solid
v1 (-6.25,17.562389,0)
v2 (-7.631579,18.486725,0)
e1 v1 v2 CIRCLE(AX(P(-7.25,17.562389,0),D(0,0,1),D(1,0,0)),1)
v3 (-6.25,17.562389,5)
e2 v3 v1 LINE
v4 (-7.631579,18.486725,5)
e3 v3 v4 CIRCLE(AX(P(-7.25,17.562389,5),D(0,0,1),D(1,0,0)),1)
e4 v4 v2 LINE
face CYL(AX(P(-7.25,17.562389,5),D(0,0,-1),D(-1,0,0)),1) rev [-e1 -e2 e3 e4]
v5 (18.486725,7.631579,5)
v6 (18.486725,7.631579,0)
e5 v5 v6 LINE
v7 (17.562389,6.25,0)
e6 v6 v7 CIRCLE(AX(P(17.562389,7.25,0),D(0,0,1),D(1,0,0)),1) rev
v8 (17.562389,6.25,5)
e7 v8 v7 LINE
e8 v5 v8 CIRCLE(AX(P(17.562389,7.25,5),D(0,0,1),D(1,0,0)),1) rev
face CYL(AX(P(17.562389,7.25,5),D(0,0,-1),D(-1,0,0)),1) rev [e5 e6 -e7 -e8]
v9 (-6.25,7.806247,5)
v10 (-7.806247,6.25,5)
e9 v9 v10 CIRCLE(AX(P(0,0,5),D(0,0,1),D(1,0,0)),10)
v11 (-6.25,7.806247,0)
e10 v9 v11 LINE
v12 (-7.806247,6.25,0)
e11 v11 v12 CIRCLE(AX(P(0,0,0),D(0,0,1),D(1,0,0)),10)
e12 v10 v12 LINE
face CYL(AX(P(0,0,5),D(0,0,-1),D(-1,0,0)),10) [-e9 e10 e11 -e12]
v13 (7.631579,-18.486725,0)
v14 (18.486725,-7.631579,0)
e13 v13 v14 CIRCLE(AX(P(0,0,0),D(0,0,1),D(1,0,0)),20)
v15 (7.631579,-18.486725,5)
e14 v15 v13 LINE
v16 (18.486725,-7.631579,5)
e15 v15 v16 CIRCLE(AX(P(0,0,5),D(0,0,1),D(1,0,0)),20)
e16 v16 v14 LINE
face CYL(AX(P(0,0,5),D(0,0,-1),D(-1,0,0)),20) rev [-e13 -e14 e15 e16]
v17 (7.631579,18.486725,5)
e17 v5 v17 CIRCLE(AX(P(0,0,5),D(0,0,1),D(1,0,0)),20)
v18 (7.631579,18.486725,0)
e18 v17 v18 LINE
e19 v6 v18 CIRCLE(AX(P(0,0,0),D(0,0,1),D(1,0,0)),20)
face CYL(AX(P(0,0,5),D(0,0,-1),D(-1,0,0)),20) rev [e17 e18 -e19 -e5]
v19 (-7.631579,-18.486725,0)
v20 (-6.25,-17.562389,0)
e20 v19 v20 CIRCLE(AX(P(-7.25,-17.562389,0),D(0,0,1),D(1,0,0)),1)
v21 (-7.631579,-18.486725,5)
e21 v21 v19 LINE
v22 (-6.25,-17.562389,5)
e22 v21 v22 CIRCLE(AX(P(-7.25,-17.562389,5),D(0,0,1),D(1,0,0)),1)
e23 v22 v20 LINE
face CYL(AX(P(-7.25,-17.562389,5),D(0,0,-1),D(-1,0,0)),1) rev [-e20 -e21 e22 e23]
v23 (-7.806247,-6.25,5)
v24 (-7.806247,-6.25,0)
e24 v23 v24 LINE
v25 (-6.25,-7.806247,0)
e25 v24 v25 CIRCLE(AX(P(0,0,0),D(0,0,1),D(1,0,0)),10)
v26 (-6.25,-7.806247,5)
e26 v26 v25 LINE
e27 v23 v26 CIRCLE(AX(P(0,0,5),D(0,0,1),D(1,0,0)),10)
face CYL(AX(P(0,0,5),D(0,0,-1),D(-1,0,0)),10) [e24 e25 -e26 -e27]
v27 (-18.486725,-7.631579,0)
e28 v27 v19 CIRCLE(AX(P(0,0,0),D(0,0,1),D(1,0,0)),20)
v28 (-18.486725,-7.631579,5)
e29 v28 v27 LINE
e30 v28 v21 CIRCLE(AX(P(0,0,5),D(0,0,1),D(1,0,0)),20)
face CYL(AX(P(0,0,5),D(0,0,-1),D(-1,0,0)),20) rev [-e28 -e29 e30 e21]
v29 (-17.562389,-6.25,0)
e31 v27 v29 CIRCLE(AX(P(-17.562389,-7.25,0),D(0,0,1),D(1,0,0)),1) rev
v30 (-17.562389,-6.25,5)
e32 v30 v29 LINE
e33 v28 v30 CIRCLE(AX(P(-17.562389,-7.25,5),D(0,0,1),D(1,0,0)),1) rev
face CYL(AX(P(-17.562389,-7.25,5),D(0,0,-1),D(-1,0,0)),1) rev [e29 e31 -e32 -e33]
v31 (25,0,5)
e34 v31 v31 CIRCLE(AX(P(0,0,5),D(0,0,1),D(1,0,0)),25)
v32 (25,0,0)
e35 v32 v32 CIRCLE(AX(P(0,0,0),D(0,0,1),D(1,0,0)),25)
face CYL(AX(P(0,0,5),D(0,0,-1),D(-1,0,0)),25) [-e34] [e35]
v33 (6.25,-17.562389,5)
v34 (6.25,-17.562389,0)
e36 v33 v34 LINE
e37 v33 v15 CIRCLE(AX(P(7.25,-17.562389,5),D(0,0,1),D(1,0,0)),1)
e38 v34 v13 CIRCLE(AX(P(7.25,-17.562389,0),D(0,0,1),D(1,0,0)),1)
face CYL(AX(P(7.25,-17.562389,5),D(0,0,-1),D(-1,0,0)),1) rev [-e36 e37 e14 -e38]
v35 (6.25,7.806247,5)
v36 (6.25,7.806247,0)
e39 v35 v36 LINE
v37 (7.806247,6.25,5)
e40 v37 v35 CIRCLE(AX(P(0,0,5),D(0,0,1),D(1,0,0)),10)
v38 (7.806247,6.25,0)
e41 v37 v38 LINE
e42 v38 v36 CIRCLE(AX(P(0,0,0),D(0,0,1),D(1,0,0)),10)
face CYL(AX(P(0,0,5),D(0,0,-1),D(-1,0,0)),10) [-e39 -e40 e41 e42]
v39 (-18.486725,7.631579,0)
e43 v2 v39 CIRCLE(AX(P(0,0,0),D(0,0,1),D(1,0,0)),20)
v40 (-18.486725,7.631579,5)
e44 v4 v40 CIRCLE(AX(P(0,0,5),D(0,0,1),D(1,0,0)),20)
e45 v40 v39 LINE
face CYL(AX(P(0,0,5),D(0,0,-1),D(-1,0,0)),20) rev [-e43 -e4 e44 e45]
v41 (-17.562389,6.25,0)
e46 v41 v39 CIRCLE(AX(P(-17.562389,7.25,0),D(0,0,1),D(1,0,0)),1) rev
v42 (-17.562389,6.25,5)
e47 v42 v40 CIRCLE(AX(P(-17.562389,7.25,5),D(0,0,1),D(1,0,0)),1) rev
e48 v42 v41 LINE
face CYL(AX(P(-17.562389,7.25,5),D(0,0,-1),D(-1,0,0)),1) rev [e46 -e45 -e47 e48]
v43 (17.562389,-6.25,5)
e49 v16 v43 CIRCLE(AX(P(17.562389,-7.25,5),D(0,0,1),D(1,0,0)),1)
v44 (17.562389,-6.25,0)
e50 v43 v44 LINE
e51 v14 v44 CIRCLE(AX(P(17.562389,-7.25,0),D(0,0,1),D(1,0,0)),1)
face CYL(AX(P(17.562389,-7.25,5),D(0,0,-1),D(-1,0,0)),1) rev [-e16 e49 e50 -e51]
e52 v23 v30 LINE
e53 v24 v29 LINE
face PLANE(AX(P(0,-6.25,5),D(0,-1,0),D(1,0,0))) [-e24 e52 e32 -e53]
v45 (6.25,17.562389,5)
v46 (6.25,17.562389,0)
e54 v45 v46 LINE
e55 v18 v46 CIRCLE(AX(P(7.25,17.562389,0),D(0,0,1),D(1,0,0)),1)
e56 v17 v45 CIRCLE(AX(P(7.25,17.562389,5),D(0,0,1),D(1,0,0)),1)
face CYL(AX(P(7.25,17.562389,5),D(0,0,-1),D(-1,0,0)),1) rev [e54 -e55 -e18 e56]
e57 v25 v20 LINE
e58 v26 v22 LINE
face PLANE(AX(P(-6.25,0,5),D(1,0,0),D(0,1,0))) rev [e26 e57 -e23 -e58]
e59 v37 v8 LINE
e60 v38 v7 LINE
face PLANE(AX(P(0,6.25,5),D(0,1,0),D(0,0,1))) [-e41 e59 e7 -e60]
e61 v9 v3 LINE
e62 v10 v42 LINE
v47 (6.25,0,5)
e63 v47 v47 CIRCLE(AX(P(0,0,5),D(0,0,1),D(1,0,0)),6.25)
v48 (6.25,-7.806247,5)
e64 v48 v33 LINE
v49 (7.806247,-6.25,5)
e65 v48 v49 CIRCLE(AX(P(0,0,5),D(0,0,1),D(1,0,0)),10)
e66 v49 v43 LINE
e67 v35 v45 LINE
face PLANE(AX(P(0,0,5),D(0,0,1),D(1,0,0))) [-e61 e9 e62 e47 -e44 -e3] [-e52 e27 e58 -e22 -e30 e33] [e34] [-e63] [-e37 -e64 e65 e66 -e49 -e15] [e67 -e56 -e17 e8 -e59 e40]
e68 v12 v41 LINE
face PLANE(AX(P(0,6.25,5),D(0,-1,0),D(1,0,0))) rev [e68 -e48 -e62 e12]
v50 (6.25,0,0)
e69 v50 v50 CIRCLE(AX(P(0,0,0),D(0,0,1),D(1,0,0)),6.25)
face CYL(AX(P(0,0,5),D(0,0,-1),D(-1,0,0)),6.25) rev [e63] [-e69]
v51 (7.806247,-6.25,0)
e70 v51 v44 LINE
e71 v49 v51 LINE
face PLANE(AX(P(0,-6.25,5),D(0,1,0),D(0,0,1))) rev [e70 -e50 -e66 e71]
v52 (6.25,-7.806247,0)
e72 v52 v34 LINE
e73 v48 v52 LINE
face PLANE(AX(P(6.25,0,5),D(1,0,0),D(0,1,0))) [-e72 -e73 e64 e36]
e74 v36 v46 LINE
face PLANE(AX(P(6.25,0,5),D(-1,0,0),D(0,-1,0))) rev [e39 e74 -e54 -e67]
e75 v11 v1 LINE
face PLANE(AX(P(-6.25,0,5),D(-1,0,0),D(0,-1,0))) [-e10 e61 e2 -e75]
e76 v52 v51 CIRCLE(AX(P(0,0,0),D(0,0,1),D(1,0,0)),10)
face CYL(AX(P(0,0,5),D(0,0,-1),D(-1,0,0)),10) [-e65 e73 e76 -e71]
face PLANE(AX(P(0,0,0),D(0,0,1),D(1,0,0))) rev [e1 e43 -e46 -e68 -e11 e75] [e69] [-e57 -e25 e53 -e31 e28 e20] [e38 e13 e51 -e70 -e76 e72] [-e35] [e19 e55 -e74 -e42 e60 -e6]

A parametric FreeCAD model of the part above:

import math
import FreeCAD as App
import Part
import Sketcher
from FreeCAD import Vector

doc = App.newDocument("Part")
body = doc.addObject("PartDesign::Body", "Body")

sketch1 = body.newObject("Sketcher::SketchObject", "Sketch")
sketch1.AttachmentSupport = (doc.getObject("XY_Plane"), [""])
sketch1.MapMode = "FlatFace"
sketch1.addGeometry(Part.Circle(Vector(0, 0, 0), Vector(0, 0, 1), 25), False)
sketch1.addGeometry(Part.ArcOfCircle(Part.Circle(Vector(17.6, 7.3, 0), Vector(0, 0, 1), 1), math.radians(-90), math.radians(22)), False)
sketch1.addGeometry(Part.LineSegment(Vector(17.6, 6.2, 0), Vector(7.8, 6.2, 0)), False)
sketch1.addGeometry(Part.ArcOfCircle(Part.Circle(Vector(0, 0, 0), Vector(0, 0, 1), 10), math.radians(38.68), math.radians(51.32)), False)
sketch1.addGeometry(Part.LineSegment(Vector(6.2, 7.8, 0), Vector(6.2, 17.6, 0)), False)
sketch1.addGeometry(Part.ArcOfCircle(Part.Circle(Vector(7.3, 17.6, 0), Vector(0, 0, 1), 1), math.radians(68), math.radians(180)), False)
sketch1.addGeometry(Part.ArcOfCircle(Part.Circle(Vector(0, 0, 0), Vector(0, 0, 1), 20), math.radians(22), math.radians(68)), False)
sketch1.addGeometry(Part.LineSegment(Vector(-6.2, 17.6, 0), Vector(-6.2, 7.8, 0)), False)
sketch1.addGeometry(Part.ArcOfCircle(Part.Circle(Vector(0, 0, 0), Vector(0, 0, 1), 10), math.radians(128.68), math.radians(141.32)), False)
sketch1.addGeometry(Part.LineSegment(Vector(-7.8, 6.2, 0), Vector(-17.6, 6.2, 0)), False)
sketch1.addGeometry(Part.ArcOfCircle(Part.Circle(Vector(-17.6, 7.3, 0), Vector(0, 0, 1), 1), math.radians(158), math.radians(270)), False)
sketch1.addGeometry(Part.ArcOfCircle(Part.Circle(Vector(0, 0, 0), Vector(0, 0, 1), 20), math.radians(112), math.radians(158)), False)
sketch1.addGeometry(Part.ArcOfCircle(Part.Circle(Vector(-7.3, 17.6, 0), Vector(0, 0, 1), 1), math.radians(0), math.radians(112)), False)
sketch1.addGeometry(Part.LineSegment(Vector(-17.6, -6.2, 0), Vector(-7.8, -6.2, 0)), False)
sketch1.addGeometry(Part.ArcOfCircle(Part.Circle(Vector(0, 0, 0), Vector(0, 0, 1), 10), math.radians(-141.32), math.radians(-128.68)), False)
sketch1.addGeometry(Part.LineSegment(Vector(-6.2, -7.8, 0), Vector(-6.2, -17.6, 0)), False)
sketch1.addGeometry(Part.ArcOfCircle(Part.Circle(Vector(-7.3, -17.6, 0), Vector(0, 0, 1), 1), math.radians(-112), math.radians(0)), False)
sketch1.addGeometry(Part.ArcOfCircle(Part.Circle(Vector(0, 0, 0), Vector(0, 0, 1), 20), math.radians(-158), math.radians(-112)), False)
sketch1.addGeometry(Part.ArcOfCircle(Part.Circle(Vector(-17.6, -7.3, 0), Vector(0, 0, 1), 1), math.radians(90), math.radians(202)), False)
sketch1.addGeometry(Part.LineSegment(Vector(6.2, -17.6, 0), Vector(6.2, -7.8, 0)), False)
sketch1.addGeometry(Part.ArcOfCircle(Part.Circle(Vector(0, 0, 0), Vector(0, 0, 1), 10), math.radians(-51.32), math.radians(-38.68)), False)
sketch1.addGeometry(Part.LineSegment(Vector(7.8, -6.2, 0), Vector(17.6, -6.2, 0)), False)
sketch1.addGeometry(Part.ArcOfCircle(Part.Circle(Vector(17.6, -7.3, 0), Vector(0, 0, 1), 1), math.radians(-22), math.radians(90)), False)
sketch1.addGeometry(Part.ArcOfCircle(Part.Circle(Vector(0, 0, 0), Vector(0, 0, 1), 20), math.radians(-68), math.radians(-22)), False)
sketch1.addGeometry(Part.ArcOfCircle(Part.Circle(Vector(7.3, -17.6, 0), Vector(0, 0, 1), 1), math.radians(-180), math.radians(-68)), False)
sketch1.addGeometry(Part.Circle(Vector(0, 0, 0), Vector(0, 0, 1), 6.2), False)
sketch1.addConstraint(Sketcher.Constraint("Tangent", 1, 1, 2, 1))
sketch1.addConstraint(Sketcher.Constraint("Coincident", 2, 2, 3, 1))
sketch1.addConstraint(Sketcher.Constraint("Coincident", 3, 2, 4, 1))
sketch1.addConstraint(Sketcher.Constraint("Tangent", 4, 2, 5, 2))
sketch1.addConstraint(Sketcher.Constraint("Tangent", 5, 1, 6, 2))
sketch1.addConstraint(Sketcher.Constraint("Tangent", 6, 1, 1, 2))
sketch1.addConstraint(Sketcher.Constraint("Coincident", 7, 2, 8, 1))
sketch1.addConstraint(Sketcher.Constraint("Coincident", 8, 2, 9, 1))
sketch1.addConstraint(Sketcher.Constraint("Tangent", 9, 2, 10, 2))
sketch1.addConstraint(Sketcher.Constraint("Tangent", 10, 1, 11, 2))
sketch1.addConstraint(Sketcher.Constraint("Tangent", 11, 1, 12, 2))
sketch1.addConstraint(Sketcher.Constraint("Tangent", 12, 1, 7, 1))
sketch1.addConstraint(Sketcher.Constraint("Coincident", 13, 2, 14, 1))
sketch1.addConstraint(Sketcher.Constraint("Coincident", 14, 2, 15, 1))
sketch1.addConstraint(Sketcher.Constraint("Tangent", 15, 2, 16, 2))
sketch1.addConstraint(Sketcher.Constraint("Tangent", 16, 1, 17, 2))
sketch1.addConstraint(Sketcher.Constraint("Tangent", 17, 1, 18, 2))
sketch1.addConstraint(Sketcher.Constraint("Tangent", 18, 1, 13, 1))
sketch1.addConstraint(Sketcher.Constraint("Coincident", 19, 2, 20, 1))
sketch1.addConstraint(Sketcher.Constraint("Coincident", 20, 2, 21, 1))
sketch1.addConstraint(Sketcher.Constraint("Tangent", 21, 2, 22, 2))
sketch1.addConstraint(Sketcher.Constraint("Tangent", 22, 1, 23, 2))
sketch1.addConstraint(Sketcher.Constraint("Tangent", 23, 1, 24, 2))
sketch1.addConstraint(Sketcher.Constraint("Tangent", 24, 1, 19, 1))
sketch1.addConstraint(Sketcher.Constraint("Horizontal", 2))
sketch1.addConstraint(Sketcher.Constraint("Vertical", 4))
sketch1.addConstraint(Sketcher.Constraint("Vertical", 7))
sketch1.addConstraint(Sketcher.Constraint("Horizontal", 9))
sketch1.addConstraint(Sketcher.Constraint("Horizontal", 13))
sketch1.addConstraint(Sketcher.Constraint("Vertical", 15))
sketch1.addConstraint(Sketcher.Constraint("Vertical", 19))
sketch1.addConstraint(Sketcher.Constraint("Horizontal", 21))
sketch1.addConstraint(Sketcher.Constraint("Coincident", 0, 3, -1, 1))
sketch1.addConstraint(Sketcher.Constraint("Coincident", 3, 3, -1, 1))
sketch1.addConstraint(Sketcher.Constraint("Coincident", 6, 3, -1, 1))
sketch1.addConstraint(Sketcher.Constraint("Coincident", 8, 3, -1, 1))
sketch1.addConstraint(Sketcher.Constraint("Coincident", 11, 3, -1, 1))
sketch1.addConstraint(Sketcher.Constraint("Coincident", 14, 3, -1, 1))
sketch1.addConstraint(Sketcher.Constraint("Coincident", 17, 3, -1, 1))
sketch1.addConstraint(Sketcher.Constraint("Coincident", 20, 3, -1, 1))
sketch1.addConstraint(Sketcher.Constraint("Coincident", 23, 3, -1, 1))
sketch1.addConstraint(Sketcher.Constraint("Coincident", 25, 3, -1, 1))
sketch1.addConstraint(Sketcher.Constraint("Equal", 1, 5))
sketch1.addConstraint(Sketcher.Constraint("Equal", 3, 8))
sketch1.addConstraint(Sketcher.Constraint("Equal", 5, 10))
sketch1.addConstraint(Sketcher.Constraint("Equal", 6, 11))
sketch1.addConstraint(Sketcher.Constraint("Equal", 10, 12))
sketch1.addConstraint(Sketcher.Constraint("Equal", 8, 14))
sketch1.addConstraint(Sketcher.Constraint("Equal", 12, 16))
sketch1.addConstraint(Sketcher.Constraint("Equal", 11, 17))
sketch1.addConstraint(Sketcher.Constraint("Equal", 16, 18))
sketch1.addConstraint(Sketcher.Constraint("Equal", 14, 20))
sketch1.addConstraint(Sketcher.Constraint("Equal", 18, 22))
sketch1.addConstraint(Sketcher.Constraint("Equal", 17, 23))
sketch1.addConstraint(Sketcher.Constraint("Equal", 22, 24))
sketch1.addConstraint(Sketcher.Constraint("Horizontal", 1, 3, 10, 3))
sketch1.addConstraint(Sketcher.Constraint("Horizontal", 5, 3, 12, 3))
sketch1.addConstraint(Sketcher.Constraint("Horizontal", 18, 3, 22, 3))
sketch1.addConstraint(Sketcher.Constraint("Horizontal", 16, 3, 24, 3))
sketch1.addConstraint(Sketcher.Constraint("Vertical", 12, 3, 16, 3))
sketch1.addConstraint(Sketcher.Constraint("Vertical", 10, 3, 18, 3))
sketch1.addConstraint(Sketcher.Constraint("Equal", 21, 4))
sketch1.addConstraint(Sketcher.Constraint("Diameter", 0, 50.0))
sketch1.addConstraint(Sketcher.Constraint("Radius", 1, 1.0))
sketch1.addConstraint(Sketcher.Constraint("Radius", 3, 10.0))
sketch1.addConstraint(Sketcher.Constraint("Radius", 6, 20.0))
sketch1.addConstraint(Sketcher.Constraint("Diameter", 25, 12.5))
sketch1.addConstraint(Sketcher.Constraint("DistanceX", 12, 3, 5, 3, 14.5))
pad1 = body.newObject("PartDesign::Pad", "Pad")
pad1.Profile = sketch1
pad1.Length = 5

doc.recompute()
